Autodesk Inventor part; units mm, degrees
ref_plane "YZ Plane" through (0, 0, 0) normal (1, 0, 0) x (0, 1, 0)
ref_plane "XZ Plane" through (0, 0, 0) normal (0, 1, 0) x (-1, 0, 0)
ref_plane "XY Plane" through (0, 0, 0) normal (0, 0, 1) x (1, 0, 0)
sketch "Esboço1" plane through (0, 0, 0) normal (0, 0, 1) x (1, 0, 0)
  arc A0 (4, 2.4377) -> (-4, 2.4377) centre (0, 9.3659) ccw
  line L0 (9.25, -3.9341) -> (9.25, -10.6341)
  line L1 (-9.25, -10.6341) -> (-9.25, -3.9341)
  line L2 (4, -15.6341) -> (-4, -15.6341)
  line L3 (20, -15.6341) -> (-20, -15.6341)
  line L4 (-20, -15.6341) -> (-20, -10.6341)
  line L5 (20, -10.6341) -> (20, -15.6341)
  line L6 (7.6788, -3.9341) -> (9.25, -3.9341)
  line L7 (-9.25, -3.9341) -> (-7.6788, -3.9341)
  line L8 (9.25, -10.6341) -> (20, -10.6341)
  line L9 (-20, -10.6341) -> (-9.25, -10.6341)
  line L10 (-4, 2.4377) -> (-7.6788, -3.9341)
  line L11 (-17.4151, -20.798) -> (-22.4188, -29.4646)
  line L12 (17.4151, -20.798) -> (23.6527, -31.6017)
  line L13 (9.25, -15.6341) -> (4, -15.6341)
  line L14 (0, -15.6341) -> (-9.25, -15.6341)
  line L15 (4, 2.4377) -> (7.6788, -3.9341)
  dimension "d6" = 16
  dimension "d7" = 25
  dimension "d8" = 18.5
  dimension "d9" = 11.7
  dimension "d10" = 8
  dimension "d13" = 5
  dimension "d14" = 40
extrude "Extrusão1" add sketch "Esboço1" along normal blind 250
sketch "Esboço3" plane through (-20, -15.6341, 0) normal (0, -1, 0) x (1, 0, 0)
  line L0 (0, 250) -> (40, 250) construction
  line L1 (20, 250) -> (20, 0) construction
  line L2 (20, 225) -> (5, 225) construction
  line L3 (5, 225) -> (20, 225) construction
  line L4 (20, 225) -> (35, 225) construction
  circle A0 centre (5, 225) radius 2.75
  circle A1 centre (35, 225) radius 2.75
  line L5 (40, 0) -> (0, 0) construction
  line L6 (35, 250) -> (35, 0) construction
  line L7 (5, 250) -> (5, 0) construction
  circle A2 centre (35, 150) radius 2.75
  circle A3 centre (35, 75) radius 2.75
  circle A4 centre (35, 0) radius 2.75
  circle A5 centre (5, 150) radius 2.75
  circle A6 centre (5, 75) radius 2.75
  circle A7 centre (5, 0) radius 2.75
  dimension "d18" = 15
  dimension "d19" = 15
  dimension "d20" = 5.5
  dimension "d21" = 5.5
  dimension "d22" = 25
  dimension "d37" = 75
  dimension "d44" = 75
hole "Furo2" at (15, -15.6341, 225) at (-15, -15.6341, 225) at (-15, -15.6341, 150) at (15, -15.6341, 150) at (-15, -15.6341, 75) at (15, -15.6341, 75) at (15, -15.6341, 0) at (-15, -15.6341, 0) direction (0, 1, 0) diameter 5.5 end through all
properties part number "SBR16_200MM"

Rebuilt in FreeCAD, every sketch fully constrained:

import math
import FreeCAD as App
import Part
import Sketcher

V = App.Vector
Q = App.Units.Quantity

doc = App.newDocument("Part")
body = doc.addObject("PartDesign::Body", "Body")

# Sketch on XY plane
sketch1 = body.newObject("Sketcher::SketchObject", "Sketch")
sketch1.AttachmentSupport = (doc.getObject("XY_Plane"), [""])
sketch1.MapMode = "FlatFace"
sketch1.addGeometry(Part.LineSegment(V(7.7, -3.9, 0), V(4, 2.4, 0)), False)
sketch1.addGeometry(Part.ArcOfCircle(Part.Circle(V(0, 9.4, 0), V(0, 0, 1), 8), math.radians(-60), math.radians(240)), False)
sketch1.addGeometry(Part.LineSegment(V(-4, 2.4, 0), V(-7.7, -3.9, 0)), False)
sketch1.addGeometry(Part.LineSegment(V(-7.7, -3.9, 0), V(-9.2, -3.9, 0)), False)
sketch1.addGeometry(Part.LineSegment(V(-9.2, -3.9, 0), V(-9.2, -10.6, 0)), False)
sketch1.addGeometry(Part.LineSegment(V(-9.2, -10.6, 0), V(-20, -10.6, 0)), False)
sketch1.addGeometry(Part.LineSegment(V(-20, -10.6, 0), V(-20, -15.6, 0)), False)
sketch1.addGeometry(Part.LineSegment(V(-20, -15.6, 0), V(20, -15.6, 0)), False)
sketch1.addGeometry(Part.LineSegment(V(20, -15.6, 0), V(20, -10.6, 0)), False)
sketch1.addGeometry(Part.LineSegment(V(20, -10.6, 0), V(9.2, -10.6, 0)), False)
sketch1.addGeometry(Part.LineSegment(V(9.2, -10.6, 0), V(9.2, -3.9, 0)), False)
sketch1.addGeometry(Part.LineSegment(V(9.2, -3.9, 0), V(7.7, -3.9, 0)), False)
sketch1.addConstraint(Sketcher.Constraint("Coincident", 0, 2, 1, 1))
sketch1.addConstraint(Sketcher.Constraint("Coincident", 1, 2, 2, 1))
sketch1.addConstraint(Sketcher.Constraint("Coincident", 2, 2, 3, 1))
sketch1.addConstraint(Sketcher.Constraint("Coincident", 3, 2, 4, 1))
sketch1.addConstraint(Sketcher.Constraint("Coincident", 4, 2, 5, 1))
sketch1.addConstraint(Sketcher.Constraint("Coincident", 5, 2, 6, 1))
sketch1.addConstraint(Sketcher.Constraint("Coincident", 6, 2, 7, 1))
sketch1.addConstraint(Sketcher.Constraint("Coincident", 7, 2, 8, 1))
sketch1.addConstraint(Sketcher.Constraint("Coincident", 8, 2, 9, 1))
sketch1.addConstraint(Sketcher.Constraint("Coincident", 9, 2, 10, 1))
sketch1.addConstraint(Sketcher.Constraint("Coincident", 10, 2, 11, 1))
sketch1.addConstraint(Sketcher.Constraint("Coincident", 11, 2, 0, 1))
sketch1.addConstraint(Sketcher.Constraint("Horizontal", 3))
sketch1.addConstraint(Sketcher.Constraint("Vertical", 4))
sketch1.addConstraint(Sketcher.Constraint("Horizontal", 5))
sketch1.addConstraint(Sketcher.Constraint("Vertical", 6))
sketch1.addConstraint(Sketcher.Constraint("Horizontal", 7))
sketch1.addConstraint(Sketcher.Constraint("Vertical", 8))
sketch1.addConstraint(Sketcher.Constraint("Horizontal", 9))
sketch1.addConstraint(Sketcher.Constraint("Vertical", 10))
sketch1.addConstraint(Sketcher.Constraint("Horizontal", 11))
sketch1.addConstraint(Sketcher.Constraint("Symmetric", 0, 2, 1, 2, -2))
sketch1.addConstraint(Sketcher.Constraint("Symmetric", 5, 2, 8, 2, -2))
sketch1.addConstraint(Sketcher.Constraint("Symmetric", 3, 2, 10, 2, -2))
sketch1.addConstraint(Sketcher.Constraint("Equal", 3, 11))
sketch1.addConstraint(Sketcher.Constraint("Radius", 1, Q("8 mm")))
sketch1.addConstraint(Sketcher.Constraint("DistanceX", 7, 1, 7, 2, Q("40 mm")))
sketch1.addConstraint(Sketcher.Constraint("DistanceY", 6, 2, 6, 1, Q("5 mm")))
sketch1.addConstraint(Sketcher.Constraint("DistanceX", 1, 2, 0, 2, Q("8 mm")))
sketch1.addConstraint(Sketcher.Constraint("DistanceY", 6, 2, 3, 2, Q("11.7 mm")))
sketch1.addConstraint(Sketcher.Constraint("DistanceX", 4, 2, 9, 2, Q("18.5 mm")))
sketch1.addConstraint(Sketcher.Constraint("Angle", 0, Q("120.0003 deg")))
sketch1.addConstraint(Sketcher.Constraint("DistanceY", 4, 2, 1, 3, Q("20 mm")))
sketch1.addConstraint(Sketcher.Constraint("DistanceY", -1, 1, 1, 3, Q("9.366 mm")))
pad1 = body.newObject("PartDesign::Pad", "Pad")
pad1.Profile = sketch1
pad1.Length = 250

# Sketch on XZ plane
sketch2 = body.newObject("Sketcher::SketchObject", "Sketch001")
sketch2.AttachmentSupport = (doc.getObject("XZ_Plane"), [""])
sketch2.MapMode = "FlatFace"
sketch2.AttachmentOffset = App.Placement(V(0, 0, 15.6341), App.Rotation())
sketch2.addGeometry(Part.Circle(V(15, 225, 0), V(0, 0, 1), 2.8), False)
sketch2.addGeometry(Part.Circle(V(-15, 225, 0), V(0, 0, 1), 2.8), False)
sketch2.addGeometry(Part.Circle(V(-15, 150, 0), V(0, 0, 1), 2.8), False)
sketch2.addGeometry(Part.Circle(V(15, 150, 0), V(0, 0, 1), 2.8), False)
sketch2.addGeometry(Part.Circle(V(-15, 75, 0), V(0, 0, 1), 2.8), False)
sketch2.addGeometry(Part.Circle(V(15, 75, 0), V(0, 0, 1), 2.8), False)
sketch2.addGeometry(Part.Circle(V(15, 0, 0), V(0, 0, 1), 2.8), False)
sketch2.addGeometry(Part.Circle(V(-15, 0, 0), V(0, 0, 1), 2.8), False)
sketch2.addConstraint(Sketcher.Constraint("Equal", 0, 1))
sketch2.addConstraint(Sketcher.Constraint("Equal", 1, 2))
sketch2.addConstraint(Sketcher.Constraint("Equal", 2, 3))
sketch2.addConstraint(Sketcher.Constraint("Equal", 3, 4))
sketch2.addConstraint(Sketcher.Constraint("Equal", 4, 5))
sketch2.addConstraint(Sketcher.Constraint("Equal", 5, 6))
sketch2.addConstraint(Sketcher.Constraint("Equal", 6, 7))
sketch2.addConstraint(Sketcher.Constraint("Symmetric", 6, 3, 7, 3, -1, 1))
sketch2.addConstraint(Sketcher.Constraint("Symmetric", 0, 3, 1, 3, -2))
sketch2.addConstraint(Sketcher.Constraint("Symmetric", 2, 3, 3, 3, -2))
sketch2.addConstraint(Sketcher.Constraint("Symmetric", 4, 3, 5, 3, -2))
sketch2.addConstraint(Sketcher.Constraint("PointOnObject", 6, 3, -1))
sketch2.addConstraint(Sketcher.Constraint("Vertical", 1, 3, 2, 3))
sketch2.addConstraint(Sketcher.Constraint("Vertical", 2, 3, 4, 3))
sketch2.addConstraint(Sketcher.Constraint("Vertical", 5, 3, 6, 3))
sketch2.addConstraint(Sketcher.Constraint("Diameter", 0, Q("5.5 mm")))
sketch2.addConstraint(Sketcher.Constraint("DistanceX", -1, 1, 0, 3, Q("15 mm")))
sketch2.addConstraint(Sketcher.Constraint("DistanceY", -1, 1, 0, 3, Q("225 mm")))
sketch2.addConstraint(Sketcher.Constraint("DistanceY", -1, 1, 2, 3, Q("150 mm")))
sketch2.addConstraint(Sketcher.Constraint("DistanceY", -1, 1, 4, 3, Q("75 mm")))
doc.recompute()
hole = body.newObject("PartDesign::Hole", "Hole")
hole.Profile = sketch2
hole.ThreadType = "None"
hole.Diameter = 5.5
hole.DepthType = "ThroughAll"

doc.recompute()
